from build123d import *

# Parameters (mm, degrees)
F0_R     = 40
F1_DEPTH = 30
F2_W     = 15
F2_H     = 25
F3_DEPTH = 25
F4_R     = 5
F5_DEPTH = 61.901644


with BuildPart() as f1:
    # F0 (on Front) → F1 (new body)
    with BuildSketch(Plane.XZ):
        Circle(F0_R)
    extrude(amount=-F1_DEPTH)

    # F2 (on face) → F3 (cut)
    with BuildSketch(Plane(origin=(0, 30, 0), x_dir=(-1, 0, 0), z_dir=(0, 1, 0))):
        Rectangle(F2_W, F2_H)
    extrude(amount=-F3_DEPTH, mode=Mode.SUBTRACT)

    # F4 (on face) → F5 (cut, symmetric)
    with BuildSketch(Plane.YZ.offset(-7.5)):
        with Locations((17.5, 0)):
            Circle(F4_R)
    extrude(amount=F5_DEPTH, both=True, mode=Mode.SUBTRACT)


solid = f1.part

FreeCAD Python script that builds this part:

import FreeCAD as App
import Part
import Sketcher

V = App.Vector


def add_polygon(sketch, points):
    """Adds a closed chain of lines whose ends are joined by coincident constraints."""
    first, n = sketch.GeometryCount, len(points)
    for a, b in zip(points, points[1:] + points[:1]):
        sketch.addGeometry(Part.LineSegment(App.Vector(*a, 0), App.Vector(*b, 0)), False)
    for i in range(n):
        sketch.addConstraint(Sketcher.Constraint("Coincident", first + i, 2, first + (i + 1) % n, 1))

doc = App.newDocument("Part")
body = doc.addObject("PartDesign::Body", "Body")

# Sketch on XZ plane
sketch1 = doc.addObject("Sketcher::SketchObject", "Sketch")
body.addObject(sketch1)
sketch1.AttachmentSupport = (doc.XZ_Plane, [""])
sketch1.MapMode = "FlatFace"
sketch1.addGeometry(Part.Circle(V(0, 0, 0), V(0, 0, 1), 40), False)
sketch1.addConstraint([
    Sketcher.Constraint("Coincident", 0, 3, -1, 1),
    Sketcher.Constraint("Diameter", 0, 80.0),
])
pad1 = doc.addObject("PartDesign::Pad", "Pad")
body.addObject(pad1)
pad1.Profile = sketch1
pad1.Length = 30
pad1.Reversed = True

# Sketch on XZ plane
sketch2 = doc.addObject("Sketcher::SketchObject", "Sketch001")
body.addObject(sketch2)
sketch2.AttachmentSupport = (doc.XZ_Plane, [""])
sketch2.MapMode = "FlatFace"
sketch2.AttachmentOffset = App.Placement(V(0, 0, -30), App.Rotation())
add_polygon(sketch2, [(7.5, 12.5), (7.5, -12.5), (-7.5, -12.5), (-7.5, 12.5)])  # lines 0-3
sketch2.addConstraint([
    Sketcher.Constraint("Vertical", 0),
    Sketcher.Constraint("Horizontal", 1),
    Sketcher.Constraint("Vertical", 2),
    Sketcher.Constraint("Horizontal", 3),
    Sketcher.Constraint("Symmetric", 0, 2, 2, 2, -1, 1),
    Sketcher.Constraint("DistanceX", 1, 2, 1, 1, 15.0),
    Sketcher.Constraint("DistanceY", 0, 2, 0, 1, 25.0),
])
pocket1 = doc.addObject("PartDesign::Pocket", "Pocket")
body.addObject(pocket1)
pocket1.Profile = sketch2
pocket1.Length = 25
pocket1.Reversed = True

# Sketch on YZ plane
sketch3 = doc.addObject("Sketcher::SketchObject", "Sketch002")
body.addObject(sketch3)
sketch3.AttachmentSupport = (doc.YZ_Plane, [""])
sketch3.MapMode = "FlatFace"
sketch3.AttachmentOffset = App.Placement(V(0, 0, -7.5), App.Rotation())
sketch3.addGeometry(Part.Circle(V(17.5, 0, 0), V(0, 0, 1), 5), False)
sketch3.addConstraint([
    Sketcher.Constraint("PointOnObject", 0, 3, -1),
    Sketcher.Constraint("Diameter", 0, 10.0),
    Sketcher.Constraint("DistanceX", -1, 1, 0, 3, 17.5),
])
pocket2 = doc.addObject("PartDesign::Pocket", "Pocket001")
body.addObject(pocket2)
pocket2.Profile = sketch3
pocket2.Length = 123.803288
pocket2.Midplane = True

doc.recompute()
